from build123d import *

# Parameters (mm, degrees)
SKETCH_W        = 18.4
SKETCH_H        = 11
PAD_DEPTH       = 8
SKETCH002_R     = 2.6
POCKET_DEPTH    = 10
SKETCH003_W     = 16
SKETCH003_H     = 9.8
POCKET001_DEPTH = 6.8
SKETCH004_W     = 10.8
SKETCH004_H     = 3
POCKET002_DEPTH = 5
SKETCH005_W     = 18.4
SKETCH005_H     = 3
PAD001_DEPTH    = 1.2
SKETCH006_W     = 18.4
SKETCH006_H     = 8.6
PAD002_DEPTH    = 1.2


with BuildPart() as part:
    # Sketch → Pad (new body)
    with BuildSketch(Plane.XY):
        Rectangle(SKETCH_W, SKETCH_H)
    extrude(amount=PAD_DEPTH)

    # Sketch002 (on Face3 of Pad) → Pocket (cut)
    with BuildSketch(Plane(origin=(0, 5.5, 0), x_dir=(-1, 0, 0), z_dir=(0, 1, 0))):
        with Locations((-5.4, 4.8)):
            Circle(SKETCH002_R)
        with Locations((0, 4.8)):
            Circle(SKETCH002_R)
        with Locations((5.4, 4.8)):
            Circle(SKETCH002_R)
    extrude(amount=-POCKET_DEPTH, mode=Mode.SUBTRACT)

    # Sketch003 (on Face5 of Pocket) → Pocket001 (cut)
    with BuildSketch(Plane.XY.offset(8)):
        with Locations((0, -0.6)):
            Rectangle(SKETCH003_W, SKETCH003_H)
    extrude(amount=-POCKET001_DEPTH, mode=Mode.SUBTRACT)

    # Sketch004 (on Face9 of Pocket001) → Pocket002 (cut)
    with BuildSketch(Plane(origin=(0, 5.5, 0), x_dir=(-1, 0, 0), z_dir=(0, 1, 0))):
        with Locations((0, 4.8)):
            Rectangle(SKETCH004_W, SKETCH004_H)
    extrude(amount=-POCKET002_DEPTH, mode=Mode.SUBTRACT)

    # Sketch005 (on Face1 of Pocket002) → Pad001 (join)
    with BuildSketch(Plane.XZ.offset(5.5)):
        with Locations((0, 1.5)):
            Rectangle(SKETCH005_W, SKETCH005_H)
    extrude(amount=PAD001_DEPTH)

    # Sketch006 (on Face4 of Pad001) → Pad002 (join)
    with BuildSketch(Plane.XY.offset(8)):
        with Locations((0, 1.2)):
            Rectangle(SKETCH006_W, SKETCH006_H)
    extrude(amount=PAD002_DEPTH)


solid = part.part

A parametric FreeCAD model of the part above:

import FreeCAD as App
import Part
import Sketcher
Q = App.Units.Quantity

doc = App.newDocument("Part")
body = doc.addObject("PartDesign::Body", "Body")

# Sketch on XY plane
sketch1 = body.newObject("Sketcher::SketchObject", "Sketch")
sketch1.AttachmentSupport = (doc.getObject("XY_Plane"), [""])
sketch1.MapMode = "FlatFace"
sketch1.addGeometry(Part.LineSegment(App.Vector(-9, 6, 0), App.Vector(-9, -6, 0)), False)
sketch1.addGeometry(Part.LineSegment(App.Vector(-9, -6, 0), App.Vector(9, -6, 0)), False)
sketch1.addGeometry(Part.LineSegment(App.Vector(9, -6, 0), App.Vector(9, 6, 0)), False)
sketch1.addGeometry(Part.LineSegment(App.Vector(9, 6, 0), App.Vector(-9, 6, 0)), False)
sketch1.addConstraint(Sketcher.Constraint("Coincident", 0, 2, 1, 1))
sketch1.addConstraint(Sketcher.Constraint("Coincident", 1, 2, 2, 1))
sketch1.addConstraint(Sketcher.Constraint("Coincident", 2, 2, 3, 1))
sketch1.addConstraint(Sketcher.Constraint("Coincident", 3, 2, 0, 1))
sketch1.addConstraint(Sketcher.Constraint("Vertical", 0))
sketch1.addConstraint(Sketcher.Constraint("Horizontal", 1))
sketch1.addConstraint(Sketcher.Constraint("Vertical", 2))
sketch1.addConstraint(Sketcher.Constraint("Horizontal", 3))
sketch1.addConstraint(Sketcher.Constraint("Symmetric", 0, 2, 2, 2, -1, 1))
sketch1.addConstraint(Sketcher.Constraint("DistanceY", 0, 2, 0, 1, Q("11 mm")))
sketch1.addConstraint(Sketcher.Constraint("DistanceX", 1, 1, 1, 2, Q("18.4 mm")))
pad1 = body.newObject("PartDesign::Pad", "Pad")
pad1.Profile = sketch1
pad1.Length = 8

# Sketch on XZ plane
sketch2 = body.newObject("Sketcher::SketchObject", "Sketch001")
sketch2.AttachmentSupport = (doc.getObject("XZ_Plane"), [""])
sketch2.MapMode = "FlatFace"
sketch2.AttachmentOffset = App.Placement(App.Vector(0, 0, -5.5), App.Rotation())
sketch2.addGeometry(Part.Circle(App.Vector(5.4, 4.8, 0), App.Vector(0, 0, 1), 2.6), False)
sketch2.addGeometry(Part.Circle(App.Vector(0, 4.8, 0), App.Vector(0, 0, 1), 2.6), False)
sketch2.addGeometry(Part.Circle(App.Vector(-5.4, 4.8, 0), App.Vector(0, 0, 1), 2.6), False)
sketch2.addConstraint(Sketcher.Constraint("Equal", 0, 1))
sketch2.addConstraint(Sketcher.Constraint("Equal", 1, 2))
sketch2.addConstraint(Sketcher.Constraint("Symmetric", 0, 3, 2, 3, -2))
sketch2.addConstraint(Sketcher.Constraint("PointOnObject", 1, 3, -2))
sketch2.addConstraint(Sketcher.Constraint("Horizontal", 0, 3, 1, 3))
sketch2.addConstraint(Sketcher.Constraint("Diameter", 0, Q("5.2 mm")))
sketch2.addConstraint(Sketcher.Constraint("DistanceX", -1, 1, 0, 3, Q("5.4 mm")))
sketch2.addConstraint(Sketcher.Constraint("DistanceY", -1, 1, 0, 3, Q("4.8 mm")))
pocket1 = body.newObject("PartDesign::Pocket", "Pocket")
pocket1.Profile = sketch2
pocket1.Length = 10
pocket1.Reversed = True

# Sketch on XY plane
sketch3 = body.newObject("Sketcher::SketchObject", "Sketch002")
sketch3.AttachmentSupport = (doc.getObject("XY_Plane"), [""])
sketch3.MapMode = "FlatFace"
sketch3.AttachmentOffset = App.Placement(App.Vector(0, 0, 8), App.Rotation())
sketch3.addGeometry(Part.LineSegment(App.Vector(-8, 4, 0), App.Vector(-8, -6, 0)), False)
sketch3.addGeometry(Part.LineSegment(App.Vector(-8, -6, 0), App.Vector(8, -6, 0)), False)
sketch3.addGeometry(Part.LineSegment(App.Vector(8, -6, 0), App.Vector(8, 4, 0)), False)
sketch3.addGeometry(Part.LineSegment(App.Vector(8, 4, 0), App.Vector(-8, 4, 0)), False)
sketch3.addConstraint(Sketcher.Constraint("Coincident", 0, 2, 1, 1))
sketch3.addConstraint(Sketcher.Constraint("Coincident", 1, 2, 2, 1))
sketch3.addConstraint(Sketcher.Constraint("Coincident", 2, 2, 3, 1))
sketch3.addConstraint(Sketcher.Constraint("Coincident", 3, 2, 0, 1))
sketch3.addConstraint(Sketcher.Constraint("Vertical", 0))
sketch3.addConstraint(Sketcher.Constraint("Horizontal", 1))
sketch3.addConstraint(Sketcher.Constraint("Vertical", 2))
sketch3.addConstraint(Sketcher.Constraint("Horizontal", 3))
sketch3.addConstraint(Sketcher.Constraint("DistanceX", 1, 1, 1, 2, Q("16 mm")))
sketch3.addConstraint(Sketcher.Constraint("DistanceY", 0, 2, 0, 1, Q("9.8 mm")))
sketch3.addConstraint(Sketcher.Constraint("DistanceX", 0, 2, -1, 1, Q("8 mm")))
sketch3.addConstraint(Sketcher.Constraint("DistanceY", 0, 2, -1, 1, Q("5.5 mm")))
pocket2 = body.newObject("PartDesign::Pocket", "Pocket001")
pocket2.Profile = sketch3
pocket2.Length = 6.8

# Sketch on XZ plane
sketch4 = body.newObject("Sketcher::SketchObject", "Sketch003")
sketch4.AttachmentSupport = (doc.getObject("XZ_Plane"), [""])
sketch4.MapMode = "FlatFace"
sketch4.AttachmentOffset = App.Placement(App.Vector(0, 0, -5.5), App.Rotation())
sketch4.addGeometry(Part.LineSegment(App.Vector(5.4, 6.3, 0), App.Vector(5.4, 3.3, 0)), False)
sketch4.addGeometry(Part.LineSegment(App.Vector(5.4, 3.3, 0), App.Vector(-5.4, 3.3, 0)), False)
sketch4.addGeometry(Part.LineSegment(App.Vector(-5.4, 3.3, 0), App.Vector(-5.4, 6.3, 0)), False)
sketch4.addGeometry(Part.LineSegment(App.Vector(-5.4, 6.3, 0), App.Vector(5.4, 6.3, 0)), False)
sketch4.addConstraint(Sketcher.Constraint("Coincident", 0, 2, 1, 1))
sketch4.addConstraint(Sketcher.Constraint("Coincident", 1, 2, 2, 1))
sketch4.addConstraint(Sketcher.Constraint("Coincident", 2, 2, 3, 1))
sketch4.addConstraint(Sketcher.Constraint("Coincident", 3, 2, 0, 1))
sketch4.addConstraint(Sketcher.Constraint("Vertical", 0))
sketch4.addConstraint(Sketcher.Constraint("Horizontal", 1))
sketch4.addConstraint(Sketcher.Constraint("Vertical", 2))
sketch4.addConstraint(Sketcher.Constraint("Horizontal", 3))
sketch4.addConstraint(Sketcher.Constraint("DistanceY", 0, 2, 0, 1, Q("3 mm")))
sketch4.addConstraint(Sketcher.Constraint("DistanceX", 1, 2, 1, 1, Q("10.8 mm")))
sketch4.addConstraint(Sketcher.Constraint("DistanceX", -1, 1, 0, 2, Q("5.4 mm")))
sketch4.addConstraint(Sketcher.Constraint("DistanceY", -1, 1, 0, 2, Q("3.3 mm")))
pocket3 = body.newObject("PartDesign::Pocket", "Pocket002")
pocket3.Profile = sketch4
pocket3.Length = 5
pocket3.Reversed = True

# Sketch on XZ plane
sketch5 = body.newObject("Sketcher::SketchObject", "Sketch004")
sketch5.AttachmentSupport = (doc.getObject("XZ_Plane"), [""])
sketch5.MapMode = "FlatFace"
sketch5.AttachmentOffset = App.Placement(App.Vector(0, 0, 5.5), App.Rotation())
sketch5.addGeometry(Part.LineSegment(App.Vector(-9.2, 3, 0), App.Vector(-9.2, 0, 0)), False)
sketch5.addGeometry(Part.LineSegment(App.Vector(-9.2, 0, 0), App.Vector(9.2, 0, 0)), False)
sketch5.addGeometry(Part.LineSegment(App.Vector(9.2, 0, 0), App.Vector(9.2, 3, 0)), False)
sketch5.addGeometry(Part.LineSegment(App.Vector(9.2, 3, 0), App.Vector(-9.2, 3, 0)), False)
sketch5.addConstraint(Sketcher.Constraint("Coincident", 0, 2, 1, 1))
sketch5.addConstraint(Sketcher.Constraint("Coincident", 1, 2, 2, 1))
sketch5.addConstraint(Sketcher.Constraint("Coincident", 2, 2, 3, 1))
sketch5.addConstraint(Sketcher.Constraint("Coincident", 3, 2, 0, 1))
sketch5.addConstraint(Sketcher.Constraint("Vertical", 0))
sketch5.addConstraint(Sketcher.Constraint("Horizontal", 1))
sketch5.addConstraint(Sketcher.Constraint("Vertical", 2))
sketch5.addConstraint(Sketcher.Constraint("Horizontal", 3))
sketch5.addConstraint(Sketcher.Constraint("Symmetric", 0, 2, 1, 2, -1, 1))
sketch5.addConstraint(Sketcher.Constraint("DistanceY", 0, 2, 0, 1, Q("3 mm")))
sketch5.addConstraint(Sketcher.Constraint("DistanceX", 1, 1, 1, 2, Q("18.4 mm")))
pad2 = body.newObject("PartDesign::Pad", "Pad001")
pad2.Profile = sketch5
pad2.Length = 1.2

# Sketch on XY plane
sketch6 = body.newObject("Sketcher::SketchObject", "Sketch005")
sketch6.AttachmentSupport = (doc.getObject("XY_Plane"), [""])
sketch6.MapMode = "FlatFace"
sketch6.AttachmentOffset = App.Placement(App.Vector(0, 0, 8), App.Rotation())
sketch6.addGeometry(Part.LineSegment(App.Vector(-9, 6, 0), App.Vector(-9, -3, 0)), False)
sketch6.addGeometry(Part.LineSegment(App.Vector(-9, -3, 0), App.Vector(9, -3, 0)), False)
sketch6.addGeometry(Part.LineSegment(App.Vector(9, -3, 0), App.Vector(9, 6, 0)), False)
sketch6.addGeometry(Part.LineSegment(App.Vector(9, 6, 0), App.Vector(-9, 6, 0)), False)
sketch6.addConstraint(Sketcher.Constraint("Coincident", 0, 2, 1, 1))
sketch6.addConstraint(Sketcher.Constraint("Coincident", 1, 2, 2, 1))
sketch6.addConstraint(Sketcher.Constraint("Coincident", 2, 2, 3, 1))
sketch6.addConstraint(Sketcher.Constraint("Coincident", 3, 2, 0, 1))
sketch6.addConstraint(Sketcher.Constraint("Vertical", 0))
sketch6.addConstraint(Sketcher.Constraint("Horizontal", 1))
sketch6.addConstraint(Sketcher.Constraint("Vertical", 2))
sketch6.addConstraint(Sketcher.Constraint("Horizontal", 3))
sketch6.addConstraint(Sketcher.Constraint("DistanceX", 1, 1, 1, 2, Q("18.4 mm")))
sketch6.addConstraint(Sketcher.Constraint("DistanceY", 0, 2, 0, 1, Q("8.6 mm")))
sketch6.addConstraint(Sketcher.Constraint("DistanceX", 0, 2, -1, 1, Q("9.2 mm")))
sketch6.addConstraint(Sketcher.Constraint("DistanceY", 0, 2, -1, 1, Q("3.1 mm")))
pad3 = body.newObject("PartDesign::Pad", "Pad002")
pad3.Profile = sketch6
pad3.Length = 1.2

doc.recompute()
